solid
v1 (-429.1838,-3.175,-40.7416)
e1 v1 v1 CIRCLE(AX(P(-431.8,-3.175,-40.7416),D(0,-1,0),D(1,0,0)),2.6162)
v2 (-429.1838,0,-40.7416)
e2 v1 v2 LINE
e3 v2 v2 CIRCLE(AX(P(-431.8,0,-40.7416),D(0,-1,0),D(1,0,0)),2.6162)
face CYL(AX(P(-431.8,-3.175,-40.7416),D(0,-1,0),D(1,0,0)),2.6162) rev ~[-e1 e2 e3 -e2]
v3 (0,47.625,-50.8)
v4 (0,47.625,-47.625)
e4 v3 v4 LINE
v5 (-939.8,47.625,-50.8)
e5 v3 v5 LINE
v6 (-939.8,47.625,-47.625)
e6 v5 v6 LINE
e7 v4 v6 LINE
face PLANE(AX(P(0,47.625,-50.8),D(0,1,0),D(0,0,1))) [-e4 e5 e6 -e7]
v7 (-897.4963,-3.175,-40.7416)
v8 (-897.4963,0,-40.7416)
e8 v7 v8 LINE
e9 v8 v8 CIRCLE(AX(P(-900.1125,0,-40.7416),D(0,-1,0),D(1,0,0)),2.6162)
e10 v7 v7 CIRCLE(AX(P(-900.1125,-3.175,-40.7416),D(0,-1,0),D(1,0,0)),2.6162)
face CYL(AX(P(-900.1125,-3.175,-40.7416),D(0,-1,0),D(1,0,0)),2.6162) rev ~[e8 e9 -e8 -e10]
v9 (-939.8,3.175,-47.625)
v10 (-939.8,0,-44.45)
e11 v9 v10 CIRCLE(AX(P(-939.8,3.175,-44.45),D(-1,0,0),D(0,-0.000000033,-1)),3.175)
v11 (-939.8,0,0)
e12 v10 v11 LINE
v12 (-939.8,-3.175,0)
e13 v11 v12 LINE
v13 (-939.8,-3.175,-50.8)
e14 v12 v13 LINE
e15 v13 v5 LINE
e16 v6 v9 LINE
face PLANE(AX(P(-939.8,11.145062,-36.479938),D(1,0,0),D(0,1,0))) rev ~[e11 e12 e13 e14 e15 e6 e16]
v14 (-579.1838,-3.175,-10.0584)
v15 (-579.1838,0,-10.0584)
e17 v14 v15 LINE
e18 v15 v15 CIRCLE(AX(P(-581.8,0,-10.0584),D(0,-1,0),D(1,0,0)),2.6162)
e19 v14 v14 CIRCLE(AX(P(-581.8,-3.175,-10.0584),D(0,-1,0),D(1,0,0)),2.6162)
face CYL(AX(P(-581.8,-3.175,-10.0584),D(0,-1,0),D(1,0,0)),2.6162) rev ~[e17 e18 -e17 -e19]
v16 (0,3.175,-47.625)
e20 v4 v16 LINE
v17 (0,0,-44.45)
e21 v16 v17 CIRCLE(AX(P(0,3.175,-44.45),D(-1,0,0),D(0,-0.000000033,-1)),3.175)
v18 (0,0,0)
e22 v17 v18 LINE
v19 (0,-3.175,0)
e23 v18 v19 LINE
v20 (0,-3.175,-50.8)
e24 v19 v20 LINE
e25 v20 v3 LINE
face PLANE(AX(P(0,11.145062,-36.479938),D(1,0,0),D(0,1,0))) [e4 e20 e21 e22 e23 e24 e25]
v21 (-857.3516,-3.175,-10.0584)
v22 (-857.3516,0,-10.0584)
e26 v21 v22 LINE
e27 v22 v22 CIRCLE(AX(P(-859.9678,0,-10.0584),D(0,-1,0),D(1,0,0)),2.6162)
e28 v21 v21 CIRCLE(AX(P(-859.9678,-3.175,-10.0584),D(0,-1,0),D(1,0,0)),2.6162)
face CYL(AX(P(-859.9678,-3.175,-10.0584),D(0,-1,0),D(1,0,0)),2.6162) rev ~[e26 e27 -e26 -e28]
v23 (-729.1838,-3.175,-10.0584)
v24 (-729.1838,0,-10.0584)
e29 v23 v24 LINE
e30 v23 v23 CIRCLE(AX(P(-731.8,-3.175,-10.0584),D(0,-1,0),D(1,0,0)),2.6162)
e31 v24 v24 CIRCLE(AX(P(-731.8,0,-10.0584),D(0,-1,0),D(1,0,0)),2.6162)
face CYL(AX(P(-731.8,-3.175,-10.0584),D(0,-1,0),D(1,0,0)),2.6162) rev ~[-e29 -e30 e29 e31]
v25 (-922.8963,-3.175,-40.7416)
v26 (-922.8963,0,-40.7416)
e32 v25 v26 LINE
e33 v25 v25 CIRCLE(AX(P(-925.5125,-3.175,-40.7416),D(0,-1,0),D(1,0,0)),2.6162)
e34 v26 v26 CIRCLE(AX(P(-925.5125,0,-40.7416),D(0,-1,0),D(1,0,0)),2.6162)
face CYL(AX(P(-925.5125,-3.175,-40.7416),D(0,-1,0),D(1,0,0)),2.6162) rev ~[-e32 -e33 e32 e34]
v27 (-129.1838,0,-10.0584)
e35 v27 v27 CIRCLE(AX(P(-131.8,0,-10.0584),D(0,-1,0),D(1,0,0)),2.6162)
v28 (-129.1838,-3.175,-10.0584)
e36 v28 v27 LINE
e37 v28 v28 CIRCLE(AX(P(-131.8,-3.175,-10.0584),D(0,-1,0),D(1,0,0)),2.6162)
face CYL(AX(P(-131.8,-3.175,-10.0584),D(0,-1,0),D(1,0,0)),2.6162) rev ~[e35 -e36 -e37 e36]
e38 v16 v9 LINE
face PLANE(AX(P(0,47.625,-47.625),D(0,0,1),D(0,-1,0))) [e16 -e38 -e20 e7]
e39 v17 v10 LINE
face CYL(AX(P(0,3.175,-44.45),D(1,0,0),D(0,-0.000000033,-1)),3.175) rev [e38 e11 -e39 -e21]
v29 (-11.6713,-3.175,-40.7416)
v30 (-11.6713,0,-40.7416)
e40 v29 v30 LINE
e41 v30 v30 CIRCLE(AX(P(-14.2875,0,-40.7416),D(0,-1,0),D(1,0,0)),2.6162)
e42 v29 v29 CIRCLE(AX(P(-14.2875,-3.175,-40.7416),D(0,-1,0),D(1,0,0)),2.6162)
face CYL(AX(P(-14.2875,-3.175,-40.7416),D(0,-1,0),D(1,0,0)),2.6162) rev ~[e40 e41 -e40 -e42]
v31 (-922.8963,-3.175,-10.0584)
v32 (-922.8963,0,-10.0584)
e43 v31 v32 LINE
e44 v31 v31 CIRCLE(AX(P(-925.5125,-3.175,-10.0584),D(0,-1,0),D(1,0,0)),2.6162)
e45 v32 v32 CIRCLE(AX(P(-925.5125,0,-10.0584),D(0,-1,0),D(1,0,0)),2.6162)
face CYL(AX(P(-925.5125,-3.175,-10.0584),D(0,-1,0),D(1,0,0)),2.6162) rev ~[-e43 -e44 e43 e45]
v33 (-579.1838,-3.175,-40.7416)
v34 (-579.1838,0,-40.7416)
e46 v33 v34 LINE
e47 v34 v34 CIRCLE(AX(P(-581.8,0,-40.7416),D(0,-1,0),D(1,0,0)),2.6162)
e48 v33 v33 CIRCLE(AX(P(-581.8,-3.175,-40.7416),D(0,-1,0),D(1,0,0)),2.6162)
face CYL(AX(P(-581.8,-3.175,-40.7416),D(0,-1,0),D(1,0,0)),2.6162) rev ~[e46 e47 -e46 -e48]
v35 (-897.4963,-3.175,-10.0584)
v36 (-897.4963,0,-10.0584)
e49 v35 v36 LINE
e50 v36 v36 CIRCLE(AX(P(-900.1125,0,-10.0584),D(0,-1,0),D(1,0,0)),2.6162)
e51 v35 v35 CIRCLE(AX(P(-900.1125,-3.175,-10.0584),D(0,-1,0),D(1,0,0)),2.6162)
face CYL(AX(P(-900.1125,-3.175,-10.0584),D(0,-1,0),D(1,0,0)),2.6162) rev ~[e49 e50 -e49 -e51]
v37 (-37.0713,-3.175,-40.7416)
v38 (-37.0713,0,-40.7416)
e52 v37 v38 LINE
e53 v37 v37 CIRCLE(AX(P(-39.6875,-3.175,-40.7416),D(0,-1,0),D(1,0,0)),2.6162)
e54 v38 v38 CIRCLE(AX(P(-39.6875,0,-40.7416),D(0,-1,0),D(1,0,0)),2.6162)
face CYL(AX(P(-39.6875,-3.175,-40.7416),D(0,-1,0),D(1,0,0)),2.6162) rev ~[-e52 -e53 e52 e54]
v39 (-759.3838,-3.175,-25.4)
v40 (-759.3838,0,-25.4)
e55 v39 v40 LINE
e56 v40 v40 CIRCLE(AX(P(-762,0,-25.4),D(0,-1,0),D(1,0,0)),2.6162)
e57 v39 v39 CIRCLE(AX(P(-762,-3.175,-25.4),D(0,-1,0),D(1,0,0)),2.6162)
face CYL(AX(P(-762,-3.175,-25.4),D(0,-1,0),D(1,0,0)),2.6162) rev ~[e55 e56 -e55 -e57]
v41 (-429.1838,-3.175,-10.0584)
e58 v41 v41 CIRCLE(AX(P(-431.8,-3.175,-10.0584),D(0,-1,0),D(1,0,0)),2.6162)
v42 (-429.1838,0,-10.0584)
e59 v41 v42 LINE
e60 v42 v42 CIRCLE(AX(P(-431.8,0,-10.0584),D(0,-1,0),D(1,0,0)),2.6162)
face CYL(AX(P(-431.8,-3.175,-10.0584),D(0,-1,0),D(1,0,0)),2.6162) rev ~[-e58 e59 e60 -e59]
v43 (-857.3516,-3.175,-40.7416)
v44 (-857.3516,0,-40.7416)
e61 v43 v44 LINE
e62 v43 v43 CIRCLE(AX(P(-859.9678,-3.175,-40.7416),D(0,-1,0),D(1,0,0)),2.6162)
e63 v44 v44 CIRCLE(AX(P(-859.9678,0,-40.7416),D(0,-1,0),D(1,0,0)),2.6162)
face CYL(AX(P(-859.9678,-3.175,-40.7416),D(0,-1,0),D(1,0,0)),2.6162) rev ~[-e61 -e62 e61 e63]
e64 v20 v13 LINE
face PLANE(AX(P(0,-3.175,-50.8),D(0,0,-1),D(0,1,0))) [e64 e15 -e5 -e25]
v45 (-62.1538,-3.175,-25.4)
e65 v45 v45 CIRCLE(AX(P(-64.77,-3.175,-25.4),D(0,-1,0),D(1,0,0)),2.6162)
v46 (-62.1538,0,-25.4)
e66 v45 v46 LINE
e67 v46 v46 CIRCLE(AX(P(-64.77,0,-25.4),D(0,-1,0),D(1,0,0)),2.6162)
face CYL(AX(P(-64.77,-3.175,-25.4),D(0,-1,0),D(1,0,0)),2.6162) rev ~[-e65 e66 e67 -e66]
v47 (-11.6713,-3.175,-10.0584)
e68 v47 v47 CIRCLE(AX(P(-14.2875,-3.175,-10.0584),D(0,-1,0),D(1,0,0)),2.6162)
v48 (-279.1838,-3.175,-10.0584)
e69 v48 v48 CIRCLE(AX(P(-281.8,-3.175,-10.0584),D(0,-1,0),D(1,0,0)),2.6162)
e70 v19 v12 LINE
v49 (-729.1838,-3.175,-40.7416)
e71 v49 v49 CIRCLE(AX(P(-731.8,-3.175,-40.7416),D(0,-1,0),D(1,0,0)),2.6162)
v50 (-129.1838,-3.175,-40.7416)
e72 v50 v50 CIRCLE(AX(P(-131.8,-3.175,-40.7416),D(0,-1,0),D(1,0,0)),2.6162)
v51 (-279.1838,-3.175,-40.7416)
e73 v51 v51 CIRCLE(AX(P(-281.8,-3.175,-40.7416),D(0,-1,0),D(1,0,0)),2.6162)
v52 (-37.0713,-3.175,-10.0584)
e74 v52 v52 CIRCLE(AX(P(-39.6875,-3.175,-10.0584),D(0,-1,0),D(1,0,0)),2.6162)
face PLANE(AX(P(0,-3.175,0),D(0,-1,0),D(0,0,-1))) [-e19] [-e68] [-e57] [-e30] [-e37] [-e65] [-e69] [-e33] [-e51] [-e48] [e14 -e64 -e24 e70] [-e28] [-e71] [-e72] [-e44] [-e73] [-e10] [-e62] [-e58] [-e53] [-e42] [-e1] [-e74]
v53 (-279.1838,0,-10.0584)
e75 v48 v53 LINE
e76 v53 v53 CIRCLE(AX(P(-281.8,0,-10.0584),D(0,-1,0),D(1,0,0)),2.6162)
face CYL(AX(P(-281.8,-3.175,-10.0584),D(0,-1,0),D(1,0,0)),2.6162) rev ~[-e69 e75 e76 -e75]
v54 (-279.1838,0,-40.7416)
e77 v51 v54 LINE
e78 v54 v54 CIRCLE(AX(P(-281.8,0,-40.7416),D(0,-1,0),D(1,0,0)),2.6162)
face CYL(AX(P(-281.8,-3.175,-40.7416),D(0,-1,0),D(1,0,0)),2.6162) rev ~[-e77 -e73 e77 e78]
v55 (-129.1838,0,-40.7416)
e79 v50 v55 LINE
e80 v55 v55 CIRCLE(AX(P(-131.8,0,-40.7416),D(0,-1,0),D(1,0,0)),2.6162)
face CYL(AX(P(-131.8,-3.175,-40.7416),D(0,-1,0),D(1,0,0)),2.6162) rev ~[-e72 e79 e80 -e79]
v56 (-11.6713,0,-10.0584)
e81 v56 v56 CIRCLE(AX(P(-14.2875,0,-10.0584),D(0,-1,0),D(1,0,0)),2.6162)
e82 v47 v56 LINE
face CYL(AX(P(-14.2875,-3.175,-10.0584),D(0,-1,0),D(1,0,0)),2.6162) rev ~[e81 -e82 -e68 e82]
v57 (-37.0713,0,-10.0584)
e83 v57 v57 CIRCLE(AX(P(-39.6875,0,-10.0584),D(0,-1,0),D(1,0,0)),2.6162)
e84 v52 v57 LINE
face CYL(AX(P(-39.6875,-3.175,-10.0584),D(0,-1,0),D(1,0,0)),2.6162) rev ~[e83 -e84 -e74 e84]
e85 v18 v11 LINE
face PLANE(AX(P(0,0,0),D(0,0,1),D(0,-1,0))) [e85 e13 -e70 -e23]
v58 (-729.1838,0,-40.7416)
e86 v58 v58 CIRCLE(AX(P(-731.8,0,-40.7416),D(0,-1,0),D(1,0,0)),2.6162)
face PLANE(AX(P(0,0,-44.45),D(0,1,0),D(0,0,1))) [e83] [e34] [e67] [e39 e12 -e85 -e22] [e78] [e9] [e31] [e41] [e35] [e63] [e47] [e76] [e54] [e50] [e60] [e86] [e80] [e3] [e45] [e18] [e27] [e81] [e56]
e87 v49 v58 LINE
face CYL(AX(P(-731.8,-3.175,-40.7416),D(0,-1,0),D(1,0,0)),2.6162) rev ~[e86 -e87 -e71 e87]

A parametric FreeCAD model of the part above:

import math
import FreeCAD as App
import Part
import Sketcher

V = App.Vector
Q = App.Units.Quantity

doc = App.newDocument("Part")
body = doc.addObject("PartDesign::Body", "Body")

sketch1 = doc.addObject("Sketcher::SketchObject", "Sketch")
body.addObject(sketch1)
sketch1.AttachmentSupport = (doc.YZ_Plane, [""])
sketch1.MapMode = "FlatFace"
sketch1.addGeometry([
    Part.LineSegment(V(0, -44.5, 0), V(0, 0, 0)),
    Part.LineSegment(V(0, 0, 0), V(-3.2, 0, 0)),
    Part.LineSegment(V(-3.2, 0, 0), V(-3.2, -50.8, 0)),
    Part.LineSegment(V(-3.2, -50.8, 0), V(47.6, -50.8, 0)),
    Part.LineSegment(V(47.6, -50.8, 0), V(47.6, -47.6, 0)),
    Part.LineSegment(V(47.6, -47.6, 0), V(3.2, -47.6, 0)),
    Part.ArcOfCircle(Part.Circle(V(3.2, -44.4, 0), V(0, 0, 1), 3.2), math.radians(-180), math.radians(-90)),
], False)
sketch1.addConstraint([
    Sketcher.Constraint("Coincident", 0, 2, 1, 1),
    Sketcher.Constraint("Coincident", 1, 2, 2, 1),
    Sketcher.Constraint("Coincident", 2, 2, 3, 1),
    Sketcher.Constraint("Coincident", 3, 2, 4, 1),
    Sketcher.Constraint("Coincident", 4, 2, 5, 1),
    Sketcher.Constraint("Tangent", 5, 2, 6, 2),
    Sketcher.Constraint("Tangent", 6, 1, 0, 1),
    Sketcher.Constraint("Vertical", 0),
    Sketcher.Constraint("Horizontal", 1),
    Sketcher.Constraint("Vertical", 2),
    Sketcher.Constraint("Horizontal", 3),
    Sketcher.Constraint("Vertical", 4),
    Sketcher.Constraint("Horizontal", 5),
    Sketcher.Constraint("Coincident", 0, 2, -1, 1),
    Sketcher.Constraint("Equal", 5, 0),
    Sketcher.Constraint("Equal", 3, 2),
    Sketcher.Constraint("DistanceX", 3, 1, 3, 2, Q("2 in")),
    Sketcher.Constraint("Radius", 6, Q("0.125 in")),
    Sketcher.Constraint("DistanceX", 5, 2, 5, 1, Q("1.75 in")),
])
pad1 = doc.addObject("PartDesign::Pad", "Pad")
body.addObject(pad1)
pad1.Profile = sketch1
pad1.Length = Q("37 in")
pad1.Reversed = True

sketch2 = doc.addObject("Sketcher::SketchObject", "Sketch001")
body.addObject(sketch2)
sketch2.AttachmentSupport = (doc.XZ_Plane, [""])
sketch2.MapMode = "FlatFace"
sketch2.AttachmentOffset = App.Placement(V(0, 0, 0.125 * 25.4), App.Rotation())
sketch2.addGeometry([
    Part.Circle(V(-14.3, -40.7, 0), V(0, 0, 1), 2.6),
    Part.Circle(V(-14.3, -10.1, 0), V(0, 0, 1), 2.6),
    Part.Circle(V(-925.5, -40.7, 0), V(0, 0, 1), 2.6),
    Part.Circle(V(-925.5, -10.1, 0), V(0, 0, 1), 2.6),
    Part.Circle(V(-431.8, -10.1, 0), V(0, 0, 1), 2.6),
    Part.Circle(V(-431.8, -40.7, 0), V(0, 0, 1), 2.6),
    Part.Circle(V(-64.8, -25.4, 0), V(0, 0, 1), 2.6),
    Part.Circle(V(-762, -25.4, 0), V(0, 0, 1), 2.6),
    Part.Circle(V(-900.1, -10.1, 0), V(0, 0, 1), 2.6),
    Part.Circle(V(-900.1, -40.7, 0), V(0, 0, 1), 2.6),
    Part.Circle(V(-39.7, -10.1, 0), V(0, 0, 1), 2.6),
    Part.Circle(V(-39.7, -40.7, 0), V(0, 0, 1), 2.6),
    Part.Circle(V(-860, -10.1, 0), V(0, 0, 1), 2.6),
    Part.Circle(V(-860, -40.7, 0), V(0, 0, 1), 2.6),
    Part.Circle(V(-731.8, -10.1, 0), V(0, 0, 1), 2.6),
    Part.Circle(V(-731.8, -40.7, 0), V(0, 0, 1), 2.6),
    Part.Circle(V(-581.8, -10.1, 0), V(0, 0, 1), 2.6),
    Part.Circle(V(-581.8, -40.7, 0), V(0, 0, 1), 2.6),
    Part.Circle(V(-281.8, -10.1, 0), V(0, 0, 1), 2.6),
    Part.Circle(V(-281.8, -40.7, 0), V(0, 0, 1), 2.6),
    Part.Circle(V(-131.8, -10.1, 0), V(0, 0, 1), 2.6),
    Part.Circle(V(-131.8, -40.7, 0), V(0, 0, 1), 2.6),
], False)
sketch2.addConstraint([
    Sketcher.Constraint("Equal", 0, 1),
    Sketcher.Constraint("Equal", 1, 2),
    Sketcher.Constraint("Equal", 2, 3),
    Sketcher.Constraint("Equal", 3, 4),
    Sketcher.Constraint("Equal", 4, 5),
    Sketcher.Constraint("Equal", 5, 6),
    Sketcher.Constraint("Equal", 6, 7),
    Sketcher.Constraint("Equal", 7, 8),
    Sketcher.Constraint("Equal", 8, 9),
    Sketcher.Constraint("Equal", 9, 10),
    Sketcher.Constraint("Equal", 10, 11),
    Sketcher.Constraint("Equal", 11, 12),
    Sketcher.Constraint("Equal", 12, 13),
    Sketcher.Constraint("Equal", 13, 14),
    Sketcher.Constraint("Equal", 14, 15),
    Sketcher.Constraint("Equal", 15, 16),
    Sketcher.Constraint("Equal", 16, 17),
    Sketcher.Constraint("Equal", 17, 18),
    Sketcher.Constraint("Equal", 18, 19),
    Sketcher.Constraint("Equal", 19, 20),
    Sketcher.Constraint("Equal", 20, 21),
    Sketcher.Constraint("Horizontal", 0, 3, 2, 3),
    Sketcher.Constraint("Horizontal", 1, 3, 3, 3),
    Sketcher.Constraint("Horizontal", 3, 3, 4, 3),
    Sketcher.Constraint("Horizontal", 2, 3, 5, 3),
    Sketcher.Constraint("Horizontal", 6, 3, 7, 3),
    Sketcher.Constraint("Horizontal", 4, 3, 8, 3),
    Sketcher.Constraint("Horizontal", 5, 3, 9, 3),
    Sketcher.Constraint("Horizontal", 8, 3, 10, 3),
    Sketcher.Constraint("Horizontal", 9, 3, 11, 3),
    Sketcher.Constraint("Horizontal", 10, 3, 12, 3),
    Sketcher.Constraint("Horizontal", 11, 3, 13, 3),
    Sketcher.Constraint("Horizontal", 12, 3, 14, 3),
    Sketcher.Constraint("Horizontal", 13, 3, 15, 3),
    Sketcher.Constraint("Horizontal", 14, 3, 16, 3),
    Sketcher.Constraint("Horizontal", 15, 3, 17, 3),
    Sketcher.Constraint("Horizontal", 16, 3, 18, 3),
    Sketcher.Constraint("Horizontal", 17, 3, 19, 3),
    Sketcher.Constraint("Horizontal", 18, 3, 20, 3),
    Sketcher.Constraint("Horizontal", 19, 3, 21, 3),
    Sketcher.Constraint("Vertical", 0, 3, 1, 3),
    Sketcher.Constraint("Vertical", 2, 3, 3, 3),
    Sketcher.Constraint("Vertical", 4, 3, 5, 3),
    Sketcher.Constraint("Vertical", 8, 3, 9, 3),
    Sketcher.Constraint("Vertical", 10, 3, 11, 3),
    Sketcher.Constraint("Vertical", 12, 3, 13, 3),
    Sketcher.Constraint("Vertical", 14, 3, 15, 3),
    Sketcher.Constraint("Vertical", 16, 3, 17, 3),
    Sketcher.Constraint("Vertical", 18, 3, 19, 3),
    Sketcher.Constraint("Vertical", 20, 3, 21, 3),
    Sketcher.Constraint("Diameter", 0, Q("0.206 in")),
    Sketcher.Constraint("DistanceX", 4, 3, -1, 1, Q("17 in")),
    Sketcher.Constraint("DistanceY", 6, 3, -1, 1, Q("1 in")),
    Sketcher.Constraint("DistanceX", 7, 3, -1, 1, Q("30 in")),
    Sketcher.Constraint("DistanceX", 3, 3, 8, 3, Q("1 in")),
    Sketcher.Constraint("DistanceX", 10, 3, 1, 3, Q("1 in")),
    Sketcher.Constraint("DistanceX", 6, 3, -1, 1, Q("2.55 in")),
    Sketcher.Constraint("DistanceX", 0, 3, -1, 1, Q("0.5625 in")),
    Sketcher.Constraint("DistanceY", 0, 3, -1, 1, Q("1.604 in")),
    Sketcher.Constraint("DistanceY", 1, 3, -1, 1, Q("0.396 in")),
    Sketcher.Constraint("DistanceX", 2, 3, -1, 1, Q("36.4375 in")),
    Sketcher.Constraint("DistanceX", 12, 3, -1, 1, Q("33.857 in")),
    Sketcher.Constraint("DistanceX", 14, 3, -1, 1, 731.8),
    Sketcher.Constraint("DistanceX", 16, 3, -1, 1, 581.8),
    Sketcher.Constraint("DistanceX", 18, 3, -1, 1, 281.8),
    Sketcher.Constraint("DistanceX", 20, 3, -1, 1, 131.8),
])
pocket1 = doc.addObject("PartDesign::Pocket", "Pocket")
body.addObject(pocket1)
pocket1.Profile = sketch2
pocket1.Type = "ThroughAll"

doc.recompute()
